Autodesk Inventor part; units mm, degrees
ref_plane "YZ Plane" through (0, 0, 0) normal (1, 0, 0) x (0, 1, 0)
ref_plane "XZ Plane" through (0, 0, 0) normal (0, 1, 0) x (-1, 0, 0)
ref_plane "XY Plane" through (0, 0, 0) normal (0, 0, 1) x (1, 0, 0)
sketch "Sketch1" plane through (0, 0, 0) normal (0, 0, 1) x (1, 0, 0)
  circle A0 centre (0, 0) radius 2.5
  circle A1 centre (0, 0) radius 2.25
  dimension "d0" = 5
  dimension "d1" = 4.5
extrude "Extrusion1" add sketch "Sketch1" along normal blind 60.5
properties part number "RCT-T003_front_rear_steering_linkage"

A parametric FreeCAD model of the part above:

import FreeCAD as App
import Part
import Sketcher

V = App.Vector
Q = App.Units.Quantity

doc = App.newDocument("Part")
body = doc.addObject("PartDesign::Body", "Body")

# Sketch on XY plane
sketch1 = body.newObject("Sketcher::SketchObject", "Sketch")
sketch1.AttachmentSupport = (doc.getObject("XY_Plane"), [""])
sketch1.MapMode = "FlatFace"
sketch1.addGeometry([
    Part.Circle(V(0, 0, 0), V(0, 0, 1), 2.5),
    Part.Circle(V(0, 0, 0), V(0, 0, 1), 2.25),
], False)
sketch1.addConstraint([
    Sketcher.Constraint("Coincident", 0, 3, -1, 1),
    Sketcher.Constraint("Coincident", 1, 3, -1, 1),
    Sketcher.Constraint("Diameter", 0, Q("5 mm")),
    Sketcher.Constraint("Diameter", 1, Q("4.5 mm")),
])
pad1 = body.newObject("PartDesign::Pad", "Pad")
pad1.Profile = sketch1
pad1.Length = 60.5

doc.recompute()
